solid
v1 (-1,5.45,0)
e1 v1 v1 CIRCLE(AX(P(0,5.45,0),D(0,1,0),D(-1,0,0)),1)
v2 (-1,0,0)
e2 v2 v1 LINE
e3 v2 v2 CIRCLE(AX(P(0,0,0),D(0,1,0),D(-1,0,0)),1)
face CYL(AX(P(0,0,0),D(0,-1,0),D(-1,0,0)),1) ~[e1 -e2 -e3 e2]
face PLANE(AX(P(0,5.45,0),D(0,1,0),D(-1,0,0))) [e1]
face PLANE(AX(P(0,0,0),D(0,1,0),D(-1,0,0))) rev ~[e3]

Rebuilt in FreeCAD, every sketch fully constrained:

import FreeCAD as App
import Part
import Sketcher
from FreeCAD import Vector
Q = App.Units.Quantity

doc = App.newDocument("Part")
params = doc.addObject("Spreadsheet::Sheet", "Params")
for row, (alias, value) in enumerate([
    ("sketch1_diameter", "2 mm"),
    ("pad1_length", "5.45 mm"),
], start=1):
    params.set(f"A{row}", alias)
    params.set(f"B{row}", "=" + value)
    params.setAlias(f"B{row}", alias)

body = doc.addObject("PartDesign::Body", "Body")

# Sketch on XZ plane
sketch1 = doc.addObject("Sketcher::SketchObject", "Sketch")
body.addObject(sketch1)
sketch1.AttachmentSupport = (doc.XZ_Plane, [""])
sketch1.MapMode = "FlatFace"
sketch1.addGeometry(Part.Circle(Vector(0, 0, 0), Vector(0, 0, 1), 1), False)
sketch1.addConstraint([
    Sketcher.Constraint("Coincident", 0, 3, -1, 1),
    Sketcher.Constraint("Diameter", 0, Q("2 mm")),
])
sketch1.setExpression("Constraints[1]", "Params.sketch1_diameter")
pad1 = doc.addObject("PartDesign::Pad", "Pad")
body.addObject(pad1)
pad1.Profile = sketch1
pad1.setExpression("Length", "Params.pad1_length")
pad1.Reversed = True

doc.recompute()
